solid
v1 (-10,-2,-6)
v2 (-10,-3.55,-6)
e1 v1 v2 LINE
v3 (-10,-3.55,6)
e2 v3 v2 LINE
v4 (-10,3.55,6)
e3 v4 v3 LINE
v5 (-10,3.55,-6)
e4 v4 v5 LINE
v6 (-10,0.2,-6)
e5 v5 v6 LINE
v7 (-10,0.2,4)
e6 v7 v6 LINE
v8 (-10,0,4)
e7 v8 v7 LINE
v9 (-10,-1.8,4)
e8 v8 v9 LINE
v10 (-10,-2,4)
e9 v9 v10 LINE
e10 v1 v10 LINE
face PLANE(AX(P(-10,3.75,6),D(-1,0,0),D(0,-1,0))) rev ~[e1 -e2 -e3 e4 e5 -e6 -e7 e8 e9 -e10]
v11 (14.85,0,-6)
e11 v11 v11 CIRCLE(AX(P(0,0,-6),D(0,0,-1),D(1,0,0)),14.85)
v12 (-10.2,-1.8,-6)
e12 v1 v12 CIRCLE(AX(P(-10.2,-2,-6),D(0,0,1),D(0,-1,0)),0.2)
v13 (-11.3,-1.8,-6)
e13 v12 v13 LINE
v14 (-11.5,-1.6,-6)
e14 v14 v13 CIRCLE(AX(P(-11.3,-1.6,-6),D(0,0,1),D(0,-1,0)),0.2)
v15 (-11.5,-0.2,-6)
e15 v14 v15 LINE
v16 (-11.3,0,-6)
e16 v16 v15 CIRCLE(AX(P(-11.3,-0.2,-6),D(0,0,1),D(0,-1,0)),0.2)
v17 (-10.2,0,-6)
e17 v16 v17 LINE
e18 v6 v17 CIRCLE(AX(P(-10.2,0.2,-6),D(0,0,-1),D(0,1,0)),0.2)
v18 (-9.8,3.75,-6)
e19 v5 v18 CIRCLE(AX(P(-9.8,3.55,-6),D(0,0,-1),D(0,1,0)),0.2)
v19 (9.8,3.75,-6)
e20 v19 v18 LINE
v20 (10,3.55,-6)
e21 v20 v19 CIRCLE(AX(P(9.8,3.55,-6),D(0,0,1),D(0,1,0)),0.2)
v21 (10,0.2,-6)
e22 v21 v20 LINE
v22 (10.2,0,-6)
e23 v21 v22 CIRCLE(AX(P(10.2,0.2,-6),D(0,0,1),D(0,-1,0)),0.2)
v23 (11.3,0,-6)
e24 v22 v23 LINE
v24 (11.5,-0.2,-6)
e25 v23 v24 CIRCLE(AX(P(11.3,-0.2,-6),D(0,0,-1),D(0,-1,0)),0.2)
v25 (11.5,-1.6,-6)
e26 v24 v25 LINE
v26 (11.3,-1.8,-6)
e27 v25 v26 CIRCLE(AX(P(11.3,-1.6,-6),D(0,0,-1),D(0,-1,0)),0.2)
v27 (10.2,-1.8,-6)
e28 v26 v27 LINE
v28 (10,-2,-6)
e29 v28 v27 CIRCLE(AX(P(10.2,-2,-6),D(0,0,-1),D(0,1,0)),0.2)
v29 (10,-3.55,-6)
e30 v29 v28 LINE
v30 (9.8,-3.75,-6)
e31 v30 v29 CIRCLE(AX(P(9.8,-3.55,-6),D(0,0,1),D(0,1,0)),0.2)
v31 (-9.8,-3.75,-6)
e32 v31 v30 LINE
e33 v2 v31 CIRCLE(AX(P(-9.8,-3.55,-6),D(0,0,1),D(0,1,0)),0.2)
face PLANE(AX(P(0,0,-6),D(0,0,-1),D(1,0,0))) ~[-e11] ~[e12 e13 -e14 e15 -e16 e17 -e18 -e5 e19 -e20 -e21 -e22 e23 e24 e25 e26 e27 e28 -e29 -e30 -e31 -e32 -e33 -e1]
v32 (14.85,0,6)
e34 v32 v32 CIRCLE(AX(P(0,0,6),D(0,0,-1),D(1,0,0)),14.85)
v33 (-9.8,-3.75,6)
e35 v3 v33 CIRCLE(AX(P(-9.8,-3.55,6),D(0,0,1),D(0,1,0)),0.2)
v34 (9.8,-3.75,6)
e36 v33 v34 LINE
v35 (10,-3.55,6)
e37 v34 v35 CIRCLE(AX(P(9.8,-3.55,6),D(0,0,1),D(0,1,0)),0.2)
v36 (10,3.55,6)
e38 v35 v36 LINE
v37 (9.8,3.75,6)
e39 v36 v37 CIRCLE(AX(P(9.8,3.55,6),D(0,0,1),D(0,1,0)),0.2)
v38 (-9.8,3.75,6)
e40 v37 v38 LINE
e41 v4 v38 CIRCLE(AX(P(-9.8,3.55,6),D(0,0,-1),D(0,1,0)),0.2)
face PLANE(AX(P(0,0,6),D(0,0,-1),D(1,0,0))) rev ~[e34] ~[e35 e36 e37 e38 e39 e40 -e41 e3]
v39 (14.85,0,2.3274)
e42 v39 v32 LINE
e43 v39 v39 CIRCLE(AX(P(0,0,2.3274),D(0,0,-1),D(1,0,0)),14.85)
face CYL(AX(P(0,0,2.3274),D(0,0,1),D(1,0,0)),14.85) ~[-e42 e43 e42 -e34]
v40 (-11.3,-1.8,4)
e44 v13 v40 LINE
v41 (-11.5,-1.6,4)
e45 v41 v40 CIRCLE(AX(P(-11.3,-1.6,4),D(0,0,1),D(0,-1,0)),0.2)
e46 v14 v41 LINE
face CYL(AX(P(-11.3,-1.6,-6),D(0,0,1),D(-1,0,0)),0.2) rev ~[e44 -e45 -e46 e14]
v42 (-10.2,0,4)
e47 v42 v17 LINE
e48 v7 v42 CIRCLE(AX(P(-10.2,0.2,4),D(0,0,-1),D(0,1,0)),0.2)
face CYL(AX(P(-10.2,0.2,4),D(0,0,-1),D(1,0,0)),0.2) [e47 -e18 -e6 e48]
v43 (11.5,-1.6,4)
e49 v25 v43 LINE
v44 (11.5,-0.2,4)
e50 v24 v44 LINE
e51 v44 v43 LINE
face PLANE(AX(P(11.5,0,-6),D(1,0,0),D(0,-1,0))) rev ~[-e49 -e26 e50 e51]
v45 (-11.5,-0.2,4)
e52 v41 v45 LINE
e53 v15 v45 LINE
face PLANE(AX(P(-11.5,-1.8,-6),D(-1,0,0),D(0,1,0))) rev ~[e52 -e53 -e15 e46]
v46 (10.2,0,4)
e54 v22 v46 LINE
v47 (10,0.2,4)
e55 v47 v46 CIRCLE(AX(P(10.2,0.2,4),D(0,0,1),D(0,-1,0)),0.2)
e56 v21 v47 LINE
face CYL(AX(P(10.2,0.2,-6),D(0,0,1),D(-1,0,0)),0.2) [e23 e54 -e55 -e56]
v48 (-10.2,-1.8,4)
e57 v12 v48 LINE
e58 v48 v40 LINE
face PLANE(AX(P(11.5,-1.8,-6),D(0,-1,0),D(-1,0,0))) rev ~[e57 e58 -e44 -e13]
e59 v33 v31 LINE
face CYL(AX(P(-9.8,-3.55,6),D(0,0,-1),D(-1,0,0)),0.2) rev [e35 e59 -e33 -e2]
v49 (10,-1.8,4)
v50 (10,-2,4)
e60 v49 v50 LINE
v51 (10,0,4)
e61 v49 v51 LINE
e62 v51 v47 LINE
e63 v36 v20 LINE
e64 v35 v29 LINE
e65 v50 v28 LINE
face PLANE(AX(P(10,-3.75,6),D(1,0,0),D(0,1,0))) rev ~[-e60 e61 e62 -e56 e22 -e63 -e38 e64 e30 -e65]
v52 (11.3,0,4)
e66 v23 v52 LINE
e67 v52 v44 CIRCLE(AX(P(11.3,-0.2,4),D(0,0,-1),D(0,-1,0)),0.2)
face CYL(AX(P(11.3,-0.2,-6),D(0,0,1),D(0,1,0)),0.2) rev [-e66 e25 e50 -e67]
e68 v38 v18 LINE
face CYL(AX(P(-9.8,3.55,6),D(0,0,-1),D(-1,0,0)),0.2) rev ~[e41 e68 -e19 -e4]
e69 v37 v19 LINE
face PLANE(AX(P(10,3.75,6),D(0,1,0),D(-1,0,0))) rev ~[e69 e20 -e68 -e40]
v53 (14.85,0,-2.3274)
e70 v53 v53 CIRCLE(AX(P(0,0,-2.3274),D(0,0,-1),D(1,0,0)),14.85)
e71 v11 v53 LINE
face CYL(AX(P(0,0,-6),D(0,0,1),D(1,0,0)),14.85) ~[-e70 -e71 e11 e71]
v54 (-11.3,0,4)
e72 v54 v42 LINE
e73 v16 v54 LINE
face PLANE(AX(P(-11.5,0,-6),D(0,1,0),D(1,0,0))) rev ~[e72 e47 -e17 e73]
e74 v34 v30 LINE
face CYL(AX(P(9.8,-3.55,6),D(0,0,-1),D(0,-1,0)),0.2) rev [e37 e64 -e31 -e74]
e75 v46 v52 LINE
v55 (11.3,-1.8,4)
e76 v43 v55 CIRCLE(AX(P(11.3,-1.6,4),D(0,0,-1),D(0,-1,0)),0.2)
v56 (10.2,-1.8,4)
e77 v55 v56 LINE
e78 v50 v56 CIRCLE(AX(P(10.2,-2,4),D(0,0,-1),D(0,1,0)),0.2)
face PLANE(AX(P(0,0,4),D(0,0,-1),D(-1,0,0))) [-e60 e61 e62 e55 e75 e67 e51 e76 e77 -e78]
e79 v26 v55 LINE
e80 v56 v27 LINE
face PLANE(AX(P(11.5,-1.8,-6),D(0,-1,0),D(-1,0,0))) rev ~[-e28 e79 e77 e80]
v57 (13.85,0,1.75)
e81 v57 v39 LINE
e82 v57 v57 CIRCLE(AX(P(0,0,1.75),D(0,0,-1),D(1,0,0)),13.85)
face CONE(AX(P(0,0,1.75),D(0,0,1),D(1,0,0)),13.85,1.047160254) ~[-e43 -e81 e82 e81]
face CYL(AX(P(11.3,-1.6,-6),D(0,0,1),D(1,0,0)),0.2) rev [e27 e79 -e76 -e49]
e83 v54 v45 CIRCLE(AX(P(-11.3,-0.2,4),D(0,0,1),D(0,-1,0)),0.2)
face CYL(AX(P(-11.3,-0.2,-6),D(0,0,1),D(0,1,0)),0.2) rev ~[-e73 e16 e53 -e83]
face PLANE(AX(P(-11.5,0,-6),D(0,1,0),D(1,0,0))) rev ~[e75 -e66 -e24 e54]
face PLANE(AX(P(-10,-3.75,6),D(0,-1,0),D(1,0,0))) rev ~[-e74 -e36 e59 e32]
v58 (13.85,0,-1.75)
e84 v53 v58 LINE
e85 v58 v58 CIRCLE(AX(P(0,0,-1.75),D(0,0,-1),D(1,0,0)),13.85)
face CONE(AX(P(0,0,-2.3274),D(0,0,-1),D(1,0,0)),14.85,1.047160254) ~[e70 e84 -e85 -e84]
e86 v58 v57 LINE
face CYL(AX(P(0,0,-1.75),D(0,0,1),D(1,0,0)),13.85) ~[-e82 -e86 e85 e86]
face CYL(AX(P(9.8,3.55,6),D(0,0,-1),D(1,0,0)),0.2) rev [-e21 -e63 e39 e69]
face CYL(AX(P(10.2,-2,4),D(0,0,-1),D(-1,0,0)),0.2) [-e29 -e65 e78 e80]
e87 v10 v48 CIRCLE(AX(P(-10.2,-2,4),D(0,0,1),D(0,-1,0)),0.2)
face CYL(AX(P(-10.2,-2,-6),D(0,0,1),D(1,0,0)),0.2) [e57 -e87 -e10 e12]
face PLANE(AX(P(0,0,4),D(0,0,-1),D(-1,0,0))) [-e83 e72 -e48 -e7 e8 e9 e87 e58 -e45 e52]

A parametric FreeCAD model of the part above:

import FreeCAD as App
import Part
import Sketcher
from FreeCAD import Vector
Q = App.Units.Quantity


def edges_at(feature, points):
    """Names of the edges that pass closest to the given points."""
    edges = feature.Shape.Edges
    near = lambda p: min(range(len(edges)), key=lambda i: edges[i].distToShape(Part.Vertex(*p))[0])
    return sorted({f"Edge{near(p) + 1}" for p in points})


def add_polygon(sketch, points):
    """Adds a closed chain of lines whose ends are joined by coincident constraints."""
    first, n = sketch.GeometryCount, len(points)
    for a, b in zip(points, points[1:] + points[:1]):
        sketch.addGeometry(Part.LineSegment(App.Vector(*a, 0), App.Vector(*b, 0)), False)
    for i in range(n):
        sketch.addConstraint(Sketcher.Constraint("Coincident", first + i, 2, first + (i + 1) % n, 1))

doc = App.newDocument("Part")
params = doc.addObject("Spreadsheet::Sheet", "Params")
for row, (alias, value) in enumerate([
    ("sketch1_height", "12 mm"),
    ("sketch1_height2", "3.5 mm"),
    ("sketch1_width", "14.85 mm"),
    ("revolution_angle", "360 deg"),
    ("sketch2_width", "20 mm"),
    ("sketch2_height", "7.5 mm"),
    ("sketch3_width", "23 mm"),
    ("sketch3_height", "1.8 mm"),
    ("pocket2_length", "10 mm"),
    ("fillet_radius", "0.2 mm"),
    ("fillet2_radius", "0.2 mm"),
], start=1):
    params.set(f"A{row}", alias)
    params.set(f"B{row}", "=" + value)
    params.setAlias(f"B{row}", alias)

body = doc.addObject("PartDesign::Body", "Body")

sketch1 = body.newObject("Sketcher::SketchObject", "Sketch")
sketch1.AttachmentSupport = (doc.getObject("XZ_Plane"), [""])
sketch1.MapMode = "FlatFace"
add_polygon(sketch1, [(14.8, -6), (0, -6), (0, 6), (14.8, 6), (14.8, 2.3), (13.8, 1.8), (13.8, -1.8), (14.8, -2.3)])
sketch1.addConstraint(Sketcher.Constraint("Horizontal", 0))
sketch1.addConstraint(Sketcher.Constraint("Vertical", 1))
sketch1.addConstraint(Sketcher.Constraint("Horizontal", 2))
sketch1.addConstraint(Sketcher.Constraint("Vertical", 3))
sketch1.addConstraint(Sketcher.Constraint("Vertical", 5))
sketch1.addConstraint(Sketcher.Constraint("Vertical", 7))
sketch1.addConstraint(Sketcher.Constraint("Symmetric", 0, 2, 1, 2, -1, 1))
sketch1.addConstraint(Sketcher.Constraint("Symmetric", 3, 2, 6, 2, -1))
sketch1.addConstraint(Sketcher.Constraint("Equal", 4, 6))
sketch1.addConstraint(Sketcher.Constraint("DistanceY", 1, 1, 1, 2, Q("12 mm")))
sketch1.addConstraint(Sketcher.Constraint("DistanceY", 5, 2, 5, 1, Q("3.5 mm")))
sketch1.addConstraint(Sketcher.Constraint("DistanceX", 4, 2, 3, 2, Q("1 mm")))
sketch1.addConstraint(Sketcher.Constraint("DistanceX", 0, 2, 0, 1, Q("14.85 mm")))
sketch1.addConstraint(Sketcher.Constraint("DistanceY", 3, 2, 3, 1, Q("3.6726 mm")))
sketch1.setExpression("Constraints[17]", "Params.sketch1_height")
sketch1.setExpression("Constraints[18]", "Params.sketch1_height2")
sketch1.setExpression("Constraints[20]", "Params.sketch1_width")
revolution = body.newObject("PartDesign::Revolution", "Revolution")
revolution.Profile = sketch1
revolution.ReferenceAxis = (sketch1, ["V_Axis"])
revolution.setExpression("Angle", "Params.revolution_angle")

sketch2 = body.newObject("Sketcher::SketchObject", "Sketch001")
sketch2.AttachmentSupport = (doc.getObject("XY_Plane"), [""])
sketch2.MapMode = "FlatFace"
sketch2.AttachmentOffset = App.Placement(Vector(0, 0, 6), App.Rotation())
add_polygon(sketch2, [(-10, 4), (-10, -4), (10, -4), (10, 4)])
sketch2.addConstraint(Sketcher.Constraint("Vertical", 0))
sketch2.addConstraint(Sketcher.Constraint("Horizontal", 1))
sketch2.addConstraint(Sketcher.Constraint("Vertical", 2))
sketch2.addConstraint(Sketcher.Constraint("Horizontal", 3))
sketch2.addConstraint(Sketcher.Constraint("Symmetric", 0, 2, 2, 2, -1, 1))
sketch2.addConstraint(Sketcher.Constraint("DistanceX", 1, 1, 1, 2, Q("20 mm")))
sketch2.addConstraint(Sketcher.Constraint("DistanceY", 0, 2, 0, 1, Q("7.5 mm")))
sketch2.setExpression("Constraints[9]", "Params.sketch2_width")
sketch2.setExpression("Constraints[10]", "Params.sketch2_height")
pocket1 = body.newObject("PartDesign::Pocket", "Pocket")
pocket1.Profile = sketch2
pocket1.Type = "ThroughAll"

sketch3 = body.newObject("Sketcher::SketchObject", "Sketch002")
sketch3.AttachmentSupport = (doc.getObject("XY_Plane"), [""])
sketch3.MapMode = "FlatFace"
sketch3.AttachmentOffset = App.Placement(Vector(0, 0, -6), App.Rotation())
add_polygon(sketch3, [(11.5, 0), (11.5, -1.8), (-11.5, -1.8), (-11.5, 0)])
sketch3.addConstraint(Sketcher.Constraint("Vertical", 0))
sketch3.addConstraint(Sketcher.Constraint("Horizontal", 1))
sketch3.addConstraint(Sketcher.Constraint("Vertical", 2))
sketch3.addConstraint(Sketcher.Constraint("Horizontal", 3))
sketch3.addConstraint(Sketcher.Constraint("Symmetric", 2, 2, 3, 2, -1, 1))
sketch3.addConstraint(Sketcher.Constraint("DistanceX", 1, 2, 1, 1, Q("23 mm")))
sketch3.addConstraint(Sketcher.Constraint("DistanceY", 0, 2, 0, 1, Q("1.8 mm")))
sketch3.setExpression("Constraints[9]", "Params.sketch3_width")
sketch3.setExpression("Constraints[10]", "Params.sketch3_height")
pocket2 = body.newObject("PartDesign::Pocket", "Pocket001")
pocket2.Profile = sketch3
pocket2.setExpression("Length", "Params.pocket2_length")
pocket2.Reversed = True
doc.recompute()

fillet = body.newObject("PartDesign::Fillet", "Fillet")
fillet.Base = (pocket2, edges_at(pocket2, [
    (10, -3.75, 0),
    (-10, -3.75, 0),
    (-10, 3.75, 0),
    (10, 3.75, 0),
]))
fillet.setExpression("Radius", "Params.fillet_radius")
doc.recompute()

fillet2 = body.newObject("PartDesign::Fillet", "Fillet001")
fillet2.Base = (fillet, edges_at(fillet, [
    (-10, -1.8, -1),
    (-11.5, -1.8, -1),
    (-11.5, 0, -1),
    (-10, 0, -1),
    (10, -1.8, -1),
    (11.5, -1.8, -1),
    (11.5, 0, -1),
    (10, 0, -1),
]))
fillet2.setExpression("Radius", "Params.fillet2_radius")

doc.recompute()
